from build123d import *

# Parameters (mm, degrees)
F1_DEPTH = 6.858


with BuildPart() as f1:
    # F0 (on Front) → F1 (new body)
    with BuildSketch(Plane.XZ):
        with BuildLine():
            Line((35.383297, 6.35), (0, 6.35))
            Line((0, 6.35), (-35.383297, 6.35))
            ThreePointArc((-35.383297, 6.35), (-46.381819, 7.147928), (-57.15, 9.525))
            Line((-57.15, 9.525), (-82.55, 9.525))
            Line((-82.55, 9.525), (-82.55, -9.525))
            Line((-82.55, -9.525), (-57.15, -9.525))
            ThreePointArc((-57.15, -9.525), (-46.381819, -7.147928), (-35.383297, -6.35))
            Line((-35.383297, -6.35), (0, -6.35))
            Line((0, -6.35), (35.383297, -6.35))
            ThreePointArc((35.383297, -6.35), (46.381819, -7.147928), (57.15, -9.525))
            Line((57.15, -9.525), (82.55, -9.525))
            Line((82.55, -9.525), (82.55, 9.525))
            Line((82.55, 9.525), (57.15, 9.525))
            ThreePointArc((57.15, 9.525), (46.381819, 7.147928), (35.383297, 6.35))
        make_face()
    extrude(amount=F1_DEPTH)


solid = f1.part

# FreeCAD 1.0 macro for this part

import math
import FreeCAD as App
import Part
import Sketcher
from FreeCAD import Vector
Q = App.Units.Quantity

doc = App.newDocument("Part")
params = doc.addObject("Spreadsheet::Sheet", "Params")
for row, (alias, value) in enumerate([
    ("sketch1_width", "1 in"),
    ("sketch1_height", "0.75 in"),
    ("pad1_length", "0.27 in"),
], start=1):
    params.set(f"A{row}", alias)
    params.set(f"B{row}", "=" + value)
    params.setAlias(f"B{row}", alias)

body = doc.addObject("PartDesign::Body", "Body")

# Sketch on XZ plane
sketch1 = body.newObject("Sketcher::SketchObject", "Sketch")
sketch1.AttachmentSupport = (doc.getObject("XZ_Plane"), [""])
sketch1.MapMode = "FlatFace"
sketch1.addGeometry(Part.LineSegment(Vector(35, 6, 0), Vector(-35, 6, 0)), False)
sketch1.addGeometry(Part.ArcOfCircle(Part.Circle(Vector(-35, 83, 0), Vector(0, 0, 1), 76), math.radians(-106.6), math.radians(-90)), False)
sketch1.addGeometry(Part.LineSegment(Vector(-57, 10, 0), Vector(-83, 10, 0)), False)
sketch1.addGeometry(Part.LineSegment(Vector(-83, 10, 0), Vector(-83, -10, 0)), False)
sketch1.addGeometry(Part.LineSegment(Vector(-83, -10, 0), Vector(-57, -10, 0)), False)
sketch1.addGeometry(Part.ArcOfCircle(Part.Circle(Vector(-35, -83, 0), Vector(0, 0, 1), 76), math.radians(90), math.radians(106.6)), False)
sketch1.addGeometry(Part.LineSegment(Vector(-35, -6, 0), Vector(35, -6, 0)), False)
sketch1.addGeometry(Part.ArcOfCircle(Part.Circle(Vector(35, -83, 0), Vector(0, 0, 1), 76), math.radians(73.4), math.radians(90)), False)
sketch1.addGeometry(Part.LineSegment(Vector(57, -10, 0), Vector(83, -10, 0)), False)
sketch1.addGeometry(Part.LineSegment(Vector(83, -10, 0), Vector(83, 10, 0)), False)
sketch1.addGeometry(Part.LineSegment(Vector(83, 10, 0), Vector(57, 10, 0)), False)
sketch1.addGeometry(Part.ArcOfCircle(Part.Circle(Vector(35, 83, 0), Vector(0, 0, 1), 76), math.radians(-90), math.radians(-73.4)), False)
sketch1.addConstraint(Sketcher.Constraint("Tangent", 0, 2, 1, 2))
sketch1.addConstraint(Sketcher.Constraint("Coincident", 1, 1, 2, 1))
sketch1.addConstraint(Sketcher.Constraint("Coincident", 2, 2, 3, 1))
sketch1.addConstraint(Sketcher.Constraint("Coincident", 3, 2, 4, 1))
sketch1.addConstraint(Sketcher.Constraint("Coincident", 4, 2, 5, 2))
sketch1.addConstraint(Sketcher.Constraint("Tangent", 5, 1, 6, 1))
sketch1.addConstraint(Sketcher.Constraint("Tangent", 6, 2, 7, 2))
sketch1.addConstraint(Sketcher.Constraint("Coincident", 7, 1, 8, 1))
sketch1.addConstraint(Sketcher.Constraint("Coincident", 8, 2, 9, 1))
sketch1.addConstraint(Sketcher.Constraint("Coincident", 9, 2, 10, 1))
sketch1.addConstraint(Sketcher.Constraint("Coincident", 10, 2, 11, 2))
sketch1.addConstraint(Sketcher.Constraint("Tangent", 11, 1, 0, 1))
sketch1.addConstraint(Sketcher.Constraint("Horizontal", 0))
sketch1.addConstraint(Sketcher.Constraint("Horizontal", 2))
sketch1.addConstraint(Sketcher.Constraint("Vertical", 3))
sketch1.addConstraint(Sketcher.Constraint("Horizontal", 4))
sketch1.addConstraint(Sketcher.Constraint("Horizontal", 6))
sketch1.addConstraint(Sketcher.Constraint("Horizontal", 8))
sketch1.addConstraint(Sketcher.Constraint("Vertical", 9))
sketch1.addConstraint(Sketcher.Constraint("Horizontal", 10))
sketch1.addConstraint(Sketcher.Constraint("Equal", 1, 5))
sketch1.addConstraint(Sketcher.Constraint("Equal", 5, 7))
sketch1.addConstraint(Sketcher.Constraint("Equal", 7, 11))
sketch1.addConstraint(Sketcher.Constraint("Symmetric", 1, 3, 7, 3, -1, 1))
sketch1.addConstraint(Sketcher.Constraint("Symmetric", 2, 2, 8, 2, -1, 1))
sketch1.addConstraint(Sketcher.Constraint("Symmetric", 4, 2, 10, 2, -1, 1))
sketch1.addConstraint(Sketcher.Constraint("Symmetric", 4, 2, 7, 1, -2))
sketch1.addConstraint(Sketcher.Constraint("DistanceX", 2, 2, 2, 1, Q("1 in")))
sketch1.addConstraint(Sketcher.Constraint("DistanceY", 3, 2, 3, 1, Q("0.75 in")))
sketch1.addConstraint(Sketcher.Constraint("DistanceY", 5, 1, 0, 2, Q("0.5 in")))
sketch1.addConstraint(Sketcher.Constraint("DistanceX", 1, 1, -1, 1, Q("2.25 in")))
sketch1.addConstraint(Sketcher.Constraint("Radius", 1, 76.200027))
sketch1.setExpression("Constraints[27]", "Params.sketch1_width")
sketch1.setExpression("Constraints[28]", "Params.sketch1_height")
pad1 = body.newObject("PartDesign::Pad", "Pad")
pad1.Profile = sketch1
pad1.setExpression("Length", "Params.pad1_length")

doc.recompute()
